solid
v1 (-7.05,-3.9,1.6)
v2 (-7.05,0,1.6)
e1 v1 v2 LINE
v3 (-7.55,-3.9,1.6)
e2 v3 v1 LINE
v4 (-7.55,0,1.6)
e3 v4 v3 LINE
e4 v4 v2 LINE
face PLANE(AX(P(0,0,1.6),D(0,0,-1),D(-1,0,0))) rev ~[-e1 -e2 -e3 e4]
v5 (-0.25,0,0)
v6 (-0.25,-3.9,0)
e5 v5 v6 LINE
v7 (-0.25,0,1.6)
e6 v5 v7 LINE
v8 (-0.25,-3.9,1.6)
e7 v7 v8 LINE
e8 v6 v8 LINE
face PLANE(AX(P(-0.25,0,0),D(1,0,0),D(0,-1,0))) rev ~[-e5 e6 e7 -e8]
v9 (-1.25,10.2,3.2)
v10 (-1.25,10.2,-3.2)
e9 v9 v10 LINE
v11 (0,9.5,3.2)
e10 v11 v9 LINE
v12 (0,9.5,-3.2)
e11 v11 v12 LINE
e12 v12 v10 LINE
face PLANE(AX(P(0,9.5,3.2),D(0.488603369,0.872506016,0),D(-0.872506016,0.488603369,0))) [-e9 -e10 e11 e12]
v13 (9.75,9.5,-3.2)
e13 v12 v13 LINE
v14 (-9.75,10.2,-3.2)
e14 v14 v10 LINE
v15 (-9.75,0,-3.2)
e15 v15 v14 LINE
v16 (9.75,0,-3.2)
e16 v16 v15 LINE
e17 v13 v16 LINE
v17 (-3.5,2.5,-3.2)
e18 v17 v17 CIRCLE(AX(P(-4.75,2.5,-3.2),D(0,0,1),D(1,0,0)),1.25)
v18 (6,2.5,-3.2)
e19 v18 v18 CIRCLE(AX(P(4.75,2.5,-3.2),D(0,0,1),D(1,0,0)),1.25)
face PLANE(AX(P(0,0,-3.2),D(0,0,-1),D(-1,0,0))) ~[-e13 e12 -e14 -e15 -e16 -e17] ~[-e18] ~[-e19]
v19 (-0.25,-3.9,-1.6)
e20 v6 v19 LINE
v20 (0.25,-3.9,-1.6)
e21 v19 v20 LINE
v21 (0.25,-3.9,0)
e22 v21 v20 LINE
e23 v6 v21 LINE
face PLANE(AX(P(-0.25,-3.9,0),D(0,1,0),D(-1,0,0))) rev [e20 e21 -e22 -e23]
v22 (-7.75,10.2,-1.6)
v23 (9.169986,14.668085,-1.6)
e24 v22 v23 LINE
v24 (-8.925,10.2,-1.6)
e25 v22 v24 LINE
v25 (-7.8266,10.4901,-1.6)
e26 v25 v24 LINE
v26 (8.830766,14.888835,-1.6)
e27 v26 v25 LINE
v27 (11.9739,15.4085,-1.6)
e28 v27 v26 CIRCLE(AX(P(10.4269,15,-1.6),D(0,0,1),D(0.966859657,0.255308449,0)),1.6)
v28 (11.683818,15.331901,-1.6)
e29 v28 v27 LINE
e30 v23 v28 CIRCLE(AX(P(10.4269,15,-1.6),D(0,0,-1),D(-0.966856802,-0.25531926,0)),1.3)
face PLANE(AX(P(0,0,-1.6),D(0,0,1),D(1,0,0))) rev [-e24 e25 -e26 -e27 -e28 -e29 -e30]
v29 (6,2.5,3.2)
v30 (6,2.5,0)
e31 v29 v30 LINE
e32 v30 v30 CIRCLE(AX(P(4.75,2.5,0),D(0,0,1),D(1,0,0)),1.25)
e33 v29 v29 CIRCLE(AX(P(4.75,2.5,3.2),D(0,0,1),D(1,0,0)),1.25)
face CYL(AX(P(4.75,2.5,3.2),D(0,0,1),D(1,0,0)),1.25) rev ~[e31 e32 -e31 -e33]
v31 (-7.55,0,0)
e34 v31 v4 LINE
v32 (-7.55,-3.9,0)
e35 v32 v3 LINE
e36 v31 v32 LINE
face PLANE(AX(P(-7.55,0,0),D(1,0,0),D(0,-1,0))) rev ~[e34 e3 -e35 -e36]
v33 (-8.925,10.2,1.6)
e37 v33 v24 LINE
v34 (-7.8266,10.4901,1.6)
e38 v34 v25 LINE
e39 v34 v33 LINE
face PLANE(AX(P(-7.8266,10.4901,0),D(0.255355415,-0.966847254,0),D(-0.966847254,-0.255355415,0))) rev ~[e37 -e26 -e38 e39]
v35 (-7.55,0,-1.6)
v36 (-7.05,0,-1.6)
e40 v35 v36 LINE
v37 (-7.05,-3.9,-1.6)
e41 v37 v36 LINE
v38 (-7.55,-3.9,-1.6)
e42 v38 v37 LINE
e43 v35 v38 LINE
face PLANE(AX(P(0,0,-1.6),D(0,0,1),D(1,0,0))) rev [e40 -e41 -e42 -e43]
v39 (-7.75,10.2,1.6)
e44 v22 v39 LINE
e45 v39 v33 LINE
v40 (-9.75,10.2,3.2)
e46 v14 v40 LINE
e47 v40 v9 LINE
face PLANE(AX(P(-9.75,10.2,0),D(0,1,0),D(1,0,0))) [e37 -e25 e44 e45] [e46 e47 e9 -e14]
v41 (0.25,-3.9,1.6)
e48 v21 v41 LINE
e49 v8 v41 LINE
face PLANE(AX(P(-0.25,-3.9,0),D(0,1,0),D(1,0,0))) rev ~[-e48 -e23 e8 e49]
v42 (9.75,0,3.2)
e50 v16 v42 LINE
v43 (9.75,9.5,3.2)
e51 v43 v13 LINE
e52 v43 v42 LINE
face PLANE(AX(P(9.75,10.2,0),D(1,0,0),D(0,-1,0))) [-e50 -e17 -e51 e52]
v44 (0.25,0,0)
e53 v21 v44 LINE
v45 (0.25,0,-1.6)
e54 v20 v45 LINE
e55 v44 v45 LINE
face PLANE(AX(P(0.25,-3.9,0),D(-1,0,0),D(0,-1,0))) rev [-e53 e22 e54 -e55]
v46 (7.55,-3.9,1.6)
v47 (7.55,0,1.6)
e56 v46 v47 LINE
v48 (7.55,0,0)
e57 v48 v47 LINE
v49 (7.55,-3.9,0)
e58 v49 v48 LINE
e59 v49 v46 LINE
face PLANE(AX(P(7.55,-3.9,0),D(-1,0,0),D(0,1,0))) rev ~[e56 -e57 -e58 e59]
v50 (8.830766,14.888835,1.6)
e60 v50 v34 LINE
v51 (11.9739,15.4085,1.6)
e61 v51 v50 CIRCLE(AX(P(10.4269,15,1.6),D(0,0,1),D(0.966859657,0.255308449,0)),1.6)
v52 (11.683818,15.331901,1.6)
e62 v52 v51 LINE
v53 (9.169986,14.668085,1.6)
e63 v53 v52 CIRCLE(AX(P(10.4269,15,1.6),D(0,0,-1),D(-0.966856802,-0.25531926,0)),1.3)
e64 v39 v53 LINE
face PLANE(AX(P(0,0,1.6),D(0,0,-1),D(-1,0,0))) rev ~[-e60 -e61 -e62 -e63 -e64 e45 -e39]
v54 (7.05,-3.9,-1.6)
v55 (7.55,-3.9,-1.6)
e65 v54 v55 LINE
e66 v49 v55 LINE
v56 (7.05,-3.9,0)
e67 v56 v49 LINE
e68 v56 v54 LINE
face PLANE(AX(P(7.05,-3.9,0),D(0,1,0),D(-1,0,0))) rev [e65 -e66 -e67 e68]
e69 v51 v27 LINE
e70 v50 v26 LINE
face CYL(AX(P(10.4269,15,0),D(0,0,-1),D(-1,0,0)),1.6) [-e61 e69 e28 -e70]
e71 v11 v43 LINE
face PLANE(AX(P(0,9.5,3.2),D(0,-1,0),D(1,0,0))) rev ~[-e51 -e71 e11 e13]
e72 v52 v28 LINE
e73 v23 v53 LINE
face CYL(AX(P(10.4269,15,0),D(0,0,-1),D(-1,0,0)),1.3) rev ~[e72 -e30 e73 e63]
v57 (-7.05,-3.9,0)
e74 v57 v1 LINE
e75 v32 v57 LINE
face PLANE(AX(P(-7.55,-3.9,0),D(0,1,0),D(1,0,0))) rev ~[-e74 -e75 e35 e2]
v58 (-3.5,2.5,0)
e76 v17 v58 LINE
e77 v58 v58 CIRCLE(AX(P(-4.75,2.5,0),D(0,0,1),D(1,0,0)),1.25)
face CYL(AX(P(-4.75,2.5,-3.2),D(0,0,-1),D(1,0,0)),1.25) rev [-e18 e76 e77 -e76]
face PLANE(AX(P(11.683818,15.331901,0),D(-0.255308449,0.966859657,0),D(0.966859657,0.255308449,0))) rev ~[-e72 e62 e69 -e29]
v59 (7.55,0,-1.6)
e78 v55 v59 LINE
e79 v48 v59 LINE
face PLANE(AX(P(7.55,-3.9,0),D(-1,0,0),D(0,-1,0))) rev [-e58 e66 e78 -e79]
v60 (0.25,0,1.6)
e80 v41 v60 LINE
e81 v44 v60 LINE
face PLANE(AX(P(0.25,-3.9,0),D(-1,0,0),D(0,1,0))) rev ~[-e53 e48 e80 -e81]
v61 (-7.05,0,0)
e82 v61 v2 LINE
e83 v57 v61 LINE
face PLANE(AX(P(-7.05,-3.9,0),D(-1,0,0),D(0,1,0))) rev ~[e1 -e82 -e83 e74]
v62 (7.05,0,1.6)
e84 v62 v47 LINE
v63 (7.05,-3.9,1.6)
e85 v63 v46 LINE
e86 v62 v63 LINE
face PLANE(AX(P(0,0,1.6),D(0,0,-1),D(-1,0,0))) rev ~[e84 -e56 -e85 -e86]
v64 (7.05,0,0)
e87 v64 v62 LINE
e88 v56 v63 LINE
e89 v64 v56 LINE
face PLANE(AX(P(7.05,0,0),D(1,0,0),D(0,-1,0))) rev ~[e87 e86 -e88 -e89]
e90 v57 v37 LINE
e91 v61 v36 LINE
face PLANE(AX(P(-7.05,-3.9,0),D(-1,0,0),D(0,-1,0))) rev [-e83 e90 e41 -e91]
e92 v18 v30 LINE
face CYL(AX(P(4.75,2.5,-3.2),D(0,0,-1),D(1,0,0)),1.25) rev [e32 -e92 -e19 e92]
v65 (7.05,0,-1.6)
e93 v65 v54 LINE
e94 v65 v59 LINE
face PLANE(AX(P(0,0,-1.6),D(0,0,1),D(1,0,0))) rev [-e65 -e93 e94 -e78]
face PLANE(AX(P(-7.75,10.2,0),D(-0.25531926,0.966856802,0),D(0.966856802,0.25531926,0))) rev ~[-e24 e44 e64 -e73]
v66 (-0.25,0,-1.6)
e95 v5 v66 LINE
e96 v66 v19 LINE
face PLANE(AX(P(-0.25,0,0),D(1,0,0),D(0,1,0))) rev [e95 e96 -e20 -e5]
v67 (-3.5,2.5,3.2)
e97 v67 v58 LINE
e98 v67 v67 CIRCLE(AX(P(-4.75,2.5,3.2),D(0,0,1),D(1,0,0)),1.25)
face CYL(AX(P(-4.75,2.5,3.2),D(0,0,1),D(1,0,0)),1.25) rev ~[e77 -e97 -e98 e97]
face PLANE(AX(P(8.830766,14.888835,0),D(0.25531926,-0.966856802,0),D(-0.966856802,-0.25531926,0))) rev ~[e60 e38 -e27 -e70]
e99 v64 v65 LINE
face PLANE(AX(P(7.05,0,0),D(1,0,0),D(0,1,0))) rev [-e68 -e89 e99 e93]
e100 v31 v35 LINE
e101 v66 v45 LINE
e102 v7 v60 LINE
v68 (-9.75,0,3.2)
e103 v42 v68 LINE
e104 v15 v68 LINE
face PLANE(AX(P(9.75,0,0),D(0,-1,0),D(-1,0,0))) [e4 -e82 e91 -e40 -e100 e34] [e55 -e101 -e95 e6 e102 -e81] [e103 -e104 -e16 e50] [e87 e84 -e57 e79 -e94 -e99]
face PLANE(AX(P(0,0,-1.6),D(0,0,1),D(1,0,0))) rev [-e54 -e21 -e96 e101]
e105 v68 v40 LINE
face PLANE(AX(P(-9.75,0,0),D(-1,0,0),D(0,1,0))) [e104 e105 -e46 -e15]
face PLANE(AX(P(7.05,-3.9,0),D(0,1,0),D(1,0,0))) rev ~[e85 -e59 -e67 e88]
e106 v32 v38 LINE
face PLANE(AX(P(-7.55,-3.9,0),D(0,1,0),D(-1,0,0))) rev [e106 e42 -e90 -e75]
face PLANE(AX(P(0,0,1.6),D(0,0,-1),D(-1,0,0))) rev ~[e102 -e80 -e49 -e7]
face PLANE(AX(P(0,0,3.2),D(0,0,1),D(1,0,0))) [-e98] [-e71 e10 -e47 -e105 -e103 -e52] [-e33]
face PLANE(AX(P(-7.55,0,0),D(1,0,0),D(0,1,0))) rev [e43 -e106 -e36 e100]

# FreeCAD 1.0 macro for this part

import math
import FreeCAD as App
import Part
import Sketcher

V = App.Vector
Q = App.Units.Quantity

doc = App.newDocument("Part")
body = doc.addObject("PartDesign::Body", "Body")

# Sketch on XY plane
sketch1 = body.newObject("Sketcher::SketchObject", "Sketch")
sketch1.AttachmentSupport = (doc.getObject("XY_Plane"), [""])
sketch1.MapMode = "FlatFace"
sketch1.addGeometry([
    Part.LineSegment(V(10, 10, 0), V(-10, 10, 0)),
    Part.LineSegment(V(-10, 10, 0), V(-10, 0, 0)),
    Part.LineSegment(V(-10, 0, 0), V(10, 0, 0)),
    Part.LineSegment(V(10, 0, 0), V(10, 10, 0)),
], False)
sketch1.addConstraint([
    Sketcher.Constraint("Coincident", 0, 2, 1, 1),
    Sketcher.Constraint("Coincident", 1, 2, 2, 1),
    Sketcher.Constraint("Coincident", 2, 2, 3, 1),
    Sketcher.Constraint("Coincident", 3, 2, 0, 1),
    Sketcher.Constraint("Horizontal", 0),
    Sketcher.Constraint("Vertical", 1),
    Sketcher.Constraint("Horizontal", 2),
    Sketcher.Constraint("Vertical", 3),
    Sketcher.Constraint("Symmetric", 1, 2, 2, 2, -1, 1),
    Sketcher.Constraint("DistanceX", 0, 2, 0, 1, Q("19.5 mm")),
    Sketcher.Constraint("DistanceY", 1, 2, 1, 1, Q("10.2 mm")),
])
pad1 = body.newObject("PartDesign::Pad", "Pad")
pad1.Profile = sketch1
pad1.Length = 3.2

# Sketch on XY plane
sketch2 = body.newObject("Sketcher::SketchObject", "Sketch001")
sketch2.AttachmentSupport = (doc.getObject("XY_Plane"), [""])
sketch2.MapMode = "FlatFace"
sketch2.AttachmentOffset = App.Placement(V(0, 0, 3.2), App.Rotation())
sketch2.addGeometry([
    Part.LineSegment(V(0, 9.5, 0), V(9.8, 9.5, 0)),
    Part.LineSegment(V(9.8, 9.5, 0), V(9.8, 10.2, 0)),
    Part.LineSegment(V(9.8, 10.2, 0), V(-1.2, 10.2, 0)),
    Part.LineSegment(V(-1.2, 10.2, 0), V(0, 9.5, 0)),
], False)
sketch2.addConstraint([
    Sketcher.Constraint("Coincident", 0, 2, 1, 1),
    Sketcher.Constraint("Coincident", 1, 2, 2, 1),
    Sketcher.Constraint("Coincident", 2, 2, 3, 1),
    Sketcher.Constraint("Coincident", 3, 2, 0, 1),
    Sketcher.Constraint("Horizontal", 0),
    Sketcher.Constraint("Vertical", 1),
    Sketcher.Constraint("Horizontal", 2),
    Sketcher.Constraint("PointOnObject", 3, 2, -2),
    Sketcher.Constraint("DistanceX", 2, 2, 2, 1, Q("11 mm")),
    Sketcher.Constraint("DistanceY", -1, 1, 0, 2, Q("9.5 mm")),
    Sketcher.Constraint("DistanceY", 1, 1, 1, 2, Q("0.7 mm")),
    Sketcher.Constraint("DistanceX", 0, 1, 0, 2, Q("9.75 mm")),
])
pocket1 = body.newObject("PartDesign::Pocket", "Pocket")
pocket1.Profile = sketch2
pocket1.Type = "ThroughAll"

# Sketch on XY plane
sketch3 = body.newObject("Sketcher::SketchObject", "Sketch002")
sketch3.AttachmentSupport = (doc.getObject("XY_Plane"), [""])
sketch3.MapMode = "FlatFace"
sketch3.AttachmentOffset = App.Placement(V(0, 0, 3.2), App.Rotation())
sketch3.addGeometry([
    Part.Circle(V(-4.8, 2.5, 0), V(0, 0, 1), 1.2),
    Part.Circle(V(4.8, 2.5, 0), V(0, 0, 1), 1.2),
], False)
sketch3.addConstraint([
    Sketcher.Constraint("Equal", 0, 1),
    Sketcher.Constraint("Symmetric", 0, 3, 1, 3, -2),
    Sketcher.Constraint("Diameter", 0, Q("2.5 mm")),
    Sketcher.Constraint("DistanceY", -1, 1, 0, 3, Q("2.5 mm")),
    Sketcher.Constraint("DistanceX", 0, 3, 1, 3, Q("9.5 mm")),
])
pocket2 = body.newObject("PartDesign::Pocket", "Pocket001")
pocket2.Profile = sketch3
pocket2.Type = "ThroughAll"

# Sketch on XY plane
sketch4 = body.newObject("Sketcher::SketchObject", "Sketch003")
sketch4.AttachmentSupport = (doc.getObject("XY_Plane"), [""])
sketch4.MapMode = "FlatFace"
sketch4.addGeometry([
    Part.LineSegment(V(7.05, -3.9, 0), V(7.05, 0, 0)),  # 0
    Part.LineSegment(V(7.05, 0, 0), V(7.55, 0, 0)),  # 1
    Part.LineSegment(V(7.55, 0, 0), V(7.55, -3.9, 0)),  # 2
    Part.LineSegment(V(7.55, -3.9, 0), V(7.05, -3.9, 0)),  # 3
    Part.LineSegment(V(-0.25, -3.9, 0), V(-0.25, 0, 0)),  # 4
    Part.LineSegment(V(-0.25, 0, 0), V(0.25, 0, 0)),  # 5
    Part.LineSegment(V(0.25, 0, 0), V(0.25, -3.9, 0)),  # 6
    Part.LineSegment(V(0.25, -3.9, 0), V(-0.25, -3.9, 0)),  # 7
    Part.LineSegment(V(-7.55, -3.9, 0), V(-7.55, 0, 0)),  # 8
    Part.LineSegment(V(-7.55, 0, 0), V(-7.05, 0, 0)),  # 9
    Part.LineSegment(V(-7.05, 0, 0), V(-7.05, -3.9, 0)),  # 10
    Part.LineSegment(V(-7.05, -3.9, 0), V(-7.55, -3.9, 0)),  # 11
    Part.LineSegment(V(-7.75, 10.2, 0), V(-8.93, 10.2, 0)),  # 12
    Part.LineSegment(V(-8.93, 10.2, 0), V(-7.83, 10.49, 0)),  # 13
    Part.LineSegment(V(-7.83, 10.49, 0), V(8.83, 14.89, 0)),  # 14
    Part.ArcOfCircle(Part.Circle(V(10.43, 15, 0), V(0, 0, 1), 1.6), math.radians(15), math.radians(184)),  # 15
    Part.LineSegment(V(11.97, 15.41, 0), V(11.68, 15.33, 0)),  # 16
    Part.ArcOfCircle(Part.Circle(V(10.43, 15, 0), V(0, 0, 1), 1.3), math.radians(15), math.radians(195)),  # 17
    Part.LineSegment(V(9.17, 14.67, 0), V(-7.75, 10.2, 0)),  # 18
], False)
sketch4.addConstraint([
    Sketcher.Constraint("Coincident", 0, 2, 1, 1),
    Sketcher.Constraint("Coincident", 1, 2, 2, 1),
    Sketcher.Constraint("Coincident", 2, 2, 3, 1),
    Sketcher.Constraint("Coincident", 3, 2, 0, 1),
    Sketcher.Constraint("Coincident", 4, 2, 5, 1),
    Sketcher.Constraint("Coincident", 5, 2, 6, 1),
    Sketcher.Constraint("Coincident", 6, 2, 7, 1),
    Sketcher.Constraint("Coincident", 7, 2, 4, 1),
    Sketcher.Constraint("Coincident", 8, 2, 9, 1),
    Sketcher.Constraint("Coincident", 9, 2, 10, 1),
    Sketcher.Constraint("Coincident", 10, 2, 11, 1),
    Sketcher.Constraint("Coincident", 11, 2, 8, 1),
    Sketcher.Constraint("Coincident", 12, 2, 13, 1),
    Sketcher.Constraint("Coincident", 13, 2, 14, 1),
    Sketcher.Constraint("Coincident", 14, 2, 15, 2),
    Sketcher.Constraint("Coincident", 15, 1, 16, 1),
    Sketcher.Constraint("Coincident", 16, 2, 17, 1),
    Sketcher.Constraint("Coincident", 17, 2, 18, 1),
    Sketcher.Constraint("Coincident", 18, 2, 12, 1),
    Sketcher.Constraint("Vertical", 0),
    Sketcher.Constraint("Horizontal", 1),
    Sketcher.Constraint("Vertical", 2),
    Sketcher.Constraint("Horizontal", 3),
    Sketcher.Constraint("Vertical", 4),
    Sketcher.Constraint("Horizontal", 5),
    Sketcher.Constraint("Vertical", 6),
    Sketcher.Constraint("Horizontal", 7),
    Sketcher.Constraint("Vertical", 8),
    Sketcher.Constraint("Horizontal", 9),
    Sketcher.Constraint("Vertical", 10),
    Sketcher.Constraint("Horizontal", 11),
    Sketcher.Constraint("Horizontal", 12),
    Sketcher.Constraint("Coincident", 17, 3, 15, 3),
    Sketcher.Constraint("Symmetric", 4, 2, 5, 2, -1, 1),
    Sketcher.Constraint("Symmetric", 1, 2, 8, 2, -1, 1),
    Sketcher.Constraint("Symmetric", 0, 2, 9, 2, -2),
    Sketcher.Constraint("Parallel", 13, 14),
    Sketcher.Constraint("Parallel", 14, 16),
    Sketcher.Constraint("Parallel", 16, 18),
    Sketcher.Constraint("Horizontal", 3, 2, 6, 2),
    Sketcher.Constraint("Horizontal", 7, 2, 10, 2),
    Sketcher.Constraint("Equal", 3, 5),
    Sketcher.Constraint("Radius", 15, Q("1.6 mm")),
    Sketcher.Constraint("Radius", 17, Q("1.3 mm")),
    Sketcher.Constraint("DistanceX", 1, 1, 1, 2, Q("0.5 mm")),
    Sketcher.Constraint("DistanceY", -1, 1, 15, 3, Q("15 mm")),
    Sketcher.Constraint("DistanceX", 4, 2, 0, 2, Q("7.3 mm")),
    Sketcher.Constraint("DistanceY", 0, 1, 0, 2, Q("3.9 mm")),
    Sketcher.Constraint("Distance", 18, Q("17.5 mm")),
    Sketcher.Constraint("DistanceY", -1, 1, 12, 2, Q("10.2 mm")),
    Sketcher.Constraint("DistanceX", 18, 2, 8, 2, Q("0.2 mm")),
    Sketcher.Constraint("DistanceX", 12, 2, 12, 1, Q("1.175 mm")),
    Sketcher.Constraint("DistanceY", -1, 1, 13, 2, Q("10.49 mm")),
    Sketcher.Constraint("DistanceX", -1, 1, 17, 2, Q("9.17 mm")),
    Sketcher.Constraint("DistanceY", -1, 1, 16, 2, Q("15.332 mm")),
])
pad2 = body.newObject("PartDesign::Pad", "Pad001")
pad2.Profile = sketch4
pad2.Length = 1.6
doc.recompute()

mirrored = body.newObject("PartDesign::Mirrored", "Mirrored")
mirrored.TransformMode = "Transform body"
mirrored.MirrorPlane = (doc.getObject("XY_Plane"), [""])
body.Tip = mirrored

doc.recompute()
